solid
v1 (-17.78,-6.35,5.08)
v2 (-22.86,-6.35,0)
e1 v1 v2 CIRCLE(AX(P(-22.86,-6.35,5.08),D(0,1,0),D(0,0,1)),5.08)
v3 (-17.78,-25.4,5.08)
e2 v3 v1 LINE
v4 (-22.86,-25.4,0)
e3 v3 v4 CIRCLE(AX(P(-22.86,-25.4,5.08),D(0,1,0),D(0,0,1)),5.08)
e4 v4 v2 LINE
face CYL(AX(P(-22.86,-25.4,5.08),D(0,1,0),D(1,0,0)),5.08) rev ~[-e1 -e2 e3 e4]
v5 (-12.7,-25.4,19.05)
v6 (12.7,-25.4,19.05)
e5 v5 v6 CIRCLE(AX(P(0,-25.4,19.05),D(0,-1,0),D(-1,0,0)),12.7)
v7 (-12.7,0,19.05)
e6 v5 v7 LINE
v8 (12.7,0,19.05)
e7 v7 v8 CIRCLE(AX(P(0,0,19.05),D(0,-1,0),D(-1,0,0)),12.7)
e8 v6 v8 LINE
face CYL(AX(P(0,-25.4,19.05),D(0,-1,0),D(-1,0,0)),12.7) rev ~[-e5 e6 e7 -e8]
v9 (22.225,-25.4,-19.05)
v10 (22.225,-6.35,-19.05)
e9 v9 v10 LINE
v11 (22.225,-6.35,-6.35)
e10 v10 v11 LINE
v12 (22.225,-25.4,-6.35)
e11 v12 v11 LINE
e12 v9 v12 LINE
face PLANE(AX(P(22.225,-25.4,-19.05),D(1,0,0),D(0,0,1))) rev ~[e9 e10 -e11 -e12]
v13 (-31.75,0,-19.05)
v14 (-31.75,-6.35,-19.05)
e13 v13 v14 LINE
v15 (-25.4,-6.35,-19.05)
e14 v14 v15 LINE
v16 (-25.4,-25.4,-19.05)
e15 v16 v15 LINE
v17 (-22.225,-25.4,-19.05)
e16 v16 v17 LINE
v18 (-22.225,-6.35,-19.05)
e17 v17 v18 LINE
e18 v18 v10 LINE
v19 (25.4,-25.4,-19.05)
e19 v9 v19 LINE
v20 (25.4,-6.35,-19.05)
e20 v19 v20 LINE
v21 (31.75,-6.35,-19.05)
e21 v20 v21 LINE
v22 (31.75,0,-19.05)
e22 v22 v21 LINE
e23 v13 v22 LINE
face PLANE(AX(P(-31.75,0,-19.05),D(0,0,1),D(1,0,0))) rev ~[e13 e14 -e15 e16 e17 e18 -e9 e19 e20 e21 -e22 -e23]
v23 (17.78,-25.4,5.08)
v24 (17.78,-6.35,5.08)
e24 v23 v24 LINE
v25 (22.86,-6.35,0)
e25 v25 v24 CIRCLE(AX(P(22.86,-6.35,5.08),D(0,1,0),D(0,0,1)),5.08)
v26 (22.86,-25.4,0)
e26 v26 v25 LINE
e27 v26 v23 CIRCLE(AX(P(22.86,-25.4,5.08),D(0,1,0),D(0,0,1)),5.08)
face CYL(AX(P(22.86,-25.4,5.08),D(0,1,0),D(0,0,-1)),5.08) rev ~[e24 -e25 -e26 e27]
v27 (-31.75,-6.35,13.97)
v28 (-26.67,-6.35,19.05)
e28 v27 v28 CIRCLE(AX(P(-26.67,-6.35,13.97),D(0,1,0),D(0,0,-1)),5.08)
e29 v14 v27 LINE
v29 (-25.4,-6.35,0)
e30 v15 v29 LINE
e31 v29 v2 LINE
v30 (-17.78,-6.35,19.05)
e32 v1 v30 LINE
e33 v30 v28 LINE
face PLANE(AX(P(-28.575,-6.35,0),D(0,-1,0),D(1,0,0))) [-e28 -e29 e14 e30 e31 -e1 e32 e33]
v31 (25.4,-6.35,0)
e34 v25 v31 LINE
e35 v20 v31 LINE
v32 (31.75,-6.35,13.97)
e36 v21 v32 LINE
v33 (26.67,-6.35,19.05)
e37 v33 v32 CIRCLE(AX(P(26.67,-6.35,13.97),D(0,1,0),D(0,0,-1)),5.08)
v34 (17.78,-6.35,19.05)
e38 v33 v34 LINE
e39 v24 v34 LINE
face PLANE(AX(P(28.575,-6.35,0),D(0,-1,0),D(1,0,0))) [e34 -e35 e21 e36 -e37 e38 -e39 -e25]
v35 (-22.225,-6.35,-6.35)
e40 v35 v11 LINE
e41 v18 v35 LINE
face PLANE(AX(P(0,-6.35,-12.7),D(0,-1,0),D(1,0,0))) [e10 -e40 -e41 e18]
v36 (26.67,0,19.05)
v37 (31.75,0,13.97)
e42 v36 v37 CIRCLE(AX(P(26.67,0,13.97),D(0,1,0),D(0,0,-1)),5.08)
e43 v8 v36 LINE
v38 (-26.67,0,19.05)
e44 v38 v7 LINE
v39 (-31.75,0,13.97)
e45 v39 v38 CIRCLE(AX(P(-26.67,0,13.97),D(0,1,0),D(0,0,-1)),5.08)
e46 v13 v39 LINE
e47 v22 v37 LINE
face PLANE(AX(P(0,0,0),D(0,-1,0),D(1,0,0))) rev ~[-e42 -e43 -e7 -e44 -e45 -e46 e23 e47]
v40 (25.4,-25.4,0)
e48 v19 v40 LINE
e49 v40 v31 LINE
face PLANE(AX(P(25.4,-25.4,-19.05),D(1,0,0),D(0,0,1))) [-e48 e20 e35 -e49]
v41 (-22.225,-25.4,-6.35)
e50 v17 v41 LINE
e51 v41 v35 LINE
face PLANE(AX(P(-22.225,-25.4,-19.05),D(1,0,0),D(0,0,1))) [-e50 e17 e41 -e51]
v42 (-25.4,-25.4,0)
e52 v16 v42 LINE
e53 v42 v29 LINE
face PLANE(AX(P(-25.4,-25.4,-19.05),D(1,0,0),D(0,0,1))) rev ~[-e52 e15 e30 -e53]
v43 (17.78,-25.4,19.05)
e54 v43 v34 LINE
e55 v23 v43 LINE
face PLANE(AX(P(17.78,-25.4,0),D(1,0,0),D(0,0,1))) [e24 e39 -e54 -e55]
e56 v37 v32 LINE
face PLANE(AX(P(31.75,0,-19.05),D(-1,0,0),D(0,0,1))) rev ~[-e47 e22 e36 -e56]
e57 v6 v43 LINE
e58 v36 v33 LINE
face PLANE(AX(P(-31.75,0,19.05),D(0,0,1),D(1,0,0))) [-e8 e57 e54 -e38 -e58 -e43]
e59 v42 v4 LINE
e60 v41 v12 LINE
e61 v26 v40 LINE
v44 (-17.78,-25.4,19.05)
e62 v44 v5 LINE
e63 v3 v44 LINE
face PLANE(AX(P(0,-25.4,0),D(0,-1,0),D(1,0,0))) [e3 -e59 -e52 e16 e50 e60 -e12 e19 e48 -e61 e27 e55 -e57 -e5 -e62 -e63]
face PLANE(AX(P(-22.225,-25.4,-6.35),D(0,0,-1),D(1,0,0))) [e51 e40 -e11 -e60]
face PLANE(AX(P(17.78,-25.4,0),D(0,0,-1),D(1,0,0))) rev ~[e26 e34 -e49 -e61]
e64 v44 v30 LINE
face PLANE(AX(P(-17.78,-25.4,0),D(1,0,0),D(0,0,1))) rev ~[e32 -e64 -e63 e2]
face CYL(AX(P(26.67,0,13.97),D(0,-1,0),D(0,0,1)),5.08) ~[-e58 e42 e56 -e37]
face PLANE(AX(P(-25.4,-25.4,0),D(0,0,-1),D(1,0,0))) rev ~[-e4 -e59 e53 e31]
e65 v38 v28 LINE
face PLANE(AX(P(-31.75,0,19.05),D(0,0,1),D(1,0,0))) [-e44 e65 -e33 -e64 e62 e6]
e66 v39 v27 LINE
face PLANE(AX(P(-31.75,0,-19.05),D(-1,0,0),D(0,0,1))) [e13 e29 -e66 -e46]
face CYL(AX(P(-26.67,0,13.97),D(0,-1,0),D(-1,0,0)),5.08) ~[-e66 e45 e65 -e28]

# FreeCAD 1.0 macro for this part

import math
import FreeCAD as App
import Part
import Sketcher
Q = App.Units.Quantity


def edges_at(feature, points):
    """Names of the edges that pass closest to the given points."""
    edges = feature.Shape.Edges
    near = lambda p: min(range(len(edges)), key=lambda i: edges[i].distToShape(Part.Vertex(*p))[0])
    return sorted({f"Edge{near(p) + 1}" for p in points})

doc = App.newDocument("Part")
body = doc.addObject("PartDesign::Body", "Body")

# Sketch on XZ plane
sketch1 = doc.addObject("Sketcher::SketchObject", "Sketch")
body.addObject(sketch1)
sketch1.AttachmentSupport = (doc.XZ_Plane, [""])
sketch1.MapMode = "FlatFace"
sketch1.addGeometry([
    Part.LineSegment(App.Vector(-31.75, 19.05, 0), App.Vector(-31.75, -19.05, 0)),
    Part.LineSegment(App.Vector(-31.75, -19.05, 0), App.Vector(31.75, -19.05, 0)),
    Part.LineSegment(App.Vector(31.75, -19.05, 0), App.Vector(31.75, 19.05, 0)),
    Part.LineSegment(App.Vector(31.75, 19.05, 0), App.Vector(-31.75, 19.05, 0)),
], False)
sketch1.addConstraint([
    Sketcher.Constraint("Coincident", 0, 2, 1, 1),
    Sketcher.Constraint("Coincident", 1, 2, 2, 1),
    Sketcher.Constraint("Coincident", 2, 2, 3, 1),
    Sketcher.Constraint("Coincident", 3, 2, 0, 1),
    Sketcher.Constraint("Vertical", 0),
    Sketcher.Constraint("Horizontal", 1),
    Sketcher.Constraint("Vertical", 2),
    Sketcher.Constraint("Horizontal", 3),
    Sketcher.Constraint("Symmetric", 0, 2, 2, 2, -1, 1),
    Sketcher.Constraint("DistanceX", 1, 1, 1, 2, Q("2.5 in")),
    Sketcher.Constraint("DistanceY", 0, 2, 0, 1, Q("1.5 in")),
])
pad1 = doc.addObject("PartDesign::Pad", "Pad")
body.addObject(pad1)
pad1.Profile = sketch1
pad1.Length = Q("1 in")

# Sketch on XZ plane
sketch2 = doc.addObject("Sketcher::SketchObject", "Sketch001")
body.addObject(sketch2)
sketch2.AttachmentSupport = (doc.XZ_Plane, [""])
sketch2.MapMode = "FlatFace"
sketch2.AttachmentOffset = App.Placement(App.Vector(0, 0, 1 * 25.4), App.Rotation())
sketch2.addGeometry([
    Part.LineSegment(App.Vector(12.7, 19.05, 0), App.Vector(-12.7, 19.05, 0)),
    Part.ArcOfCircle(Part.Circle(App.Vector(0, 19.05, 0), App.Vector(0, 0, 1), 12.7), math.radians(180), math.radians(360)),
], False)
sketch2.addConstraint([
    Sketcher.Constraint("Coincident", 0, 1, 1, 2),
    Sketcher.Constraint("Coincident", 1, 1, 0, 2),
    Sketcher.Constraint("Horizontal", 0),
    Sketcher.Constraint("PointOnObject", 1, 3, -2),
    Sketcher.Constraint("Horizontal", 1, 3, 0, 1),
    Sketcher.Constraint("Radius", 1, Q("0.5 in")),
    Sketcher.Constraint("DistanceY", -1, 1, 1, 3, Q("0.75 in")),
])
pocket1 = doc.addObject("PartDesign::Pocket", "Pocket")
body.addObject(pocket1)
pocket1.Profile = sketch2
pocket1.Length = Q("1.5 in")

# Sketch on XZ plane
sketch3 = doc.addObject("Sketcher::SketchObject", "Sketch002")
body.addObject(sketch3)
sketch3.AttachmentSupport = (doc.XZ_Plane, [""])
sketch3.MapMode = "FlatFace"
sketch3.AttachmentOffset = App.Placement(App.Vector(0, 0, 1 * 25.4), App.Rotation())
sketch3.addGeometry([
    Part.LineSegment(App.Vector(-22.225, -6.35, 0), App.Vector(-22.225, -19.05, 0)),
    Part.LineSegment(App.Vector(-22.225, -19.05, 0), App.Vector(22.225, -19.05, 0)),
    Part.LineSegment(App.Vector(22.225, -19.05, 0), App.Vector(22.225, -6.35, 0)),
    Part.LineSegment(App.Vector(22.225, -6.35, 0), App.Vector(-22.225, -6.35, 0)),
], False)
sketch3.addConstraint([
    Sketcher.Constraint("Coincident", 0, 2, 1, 1),
    Sketcher.Constraint("Coincident", 1, 2, 2, 1),
    Sketcher.Constraint("Coincident", 2, 2, 3, 1),
    Sketcher.Constraint("Coincident", 3, 2, 0, 1),
    Sketcher.Constraint("Vertical", 0),
    Sketcher.Constraint("Horizontal", 1),
    Sketcher.Constraint("Vertical", 2),
    Sketcher.Constraint("Horizontal", 3),
    Sketcher.Constraint("DistanceY", 0, 2, 0, 1, Q("0.5 in")),
    Sketcher.Constraint("DistanceX", 1, 1, 1, 2, Q("1.75 in")),
    Sketcher.Constraint("DistanceY", 0, 2, -1, 1, Q("0.75 in")),
    Sketcher.Constraint("DistanceX", 0, 2, -1, 1, Q("0.875 in")),
])
pocket2 = doc.addObject("PartDesign::Pocket", "Pocket001")
body.addObject(pocket2)
pocket2.Profile = sketch3
pocket2.Length = Q("0.75 in")

# Sketch on XZ plane
sketch4 = doc.addObject("Sketcher::SketchObject", "Sketch003")
body.addObject(sketch4)
sketch4.AttachmentSupport = (doc.XZ_Plane, [""])
sketch4.MapMode = "FlatFace"
sketch4.AttachmentOffset = App.Placement(App.Vector(0, 0, 1 * 25.4), App.Rotation())
sketch4.addGeometry([
    Part.LineSegment(App.Vector(-31.75, 19.05, 0), App.Vector(-31.75, -19.05, 0)),
    Part.LineSegment(App.Vector(-31.75, -19.05, 0), App.Vector(-25.4, -19.05, 0)),
    Part.LineSegment(App.Vector(-25.4, -19.05, 0), App.Vector(-25.4, 19.05, 0)),
    Part.LineSegment(App.Vector(-25.4, 19.05, 0), App.Vector(-31.75, 19.05, 0)),
], False)
sketch4.addConstraint([
    Sketcher.Constraint("Coincident", 0, 2, 1, 1),
    Sketcher.Constraint("Coincident", 1, 2, 2, 1),
    Sketcher.Constraint("Coincident", 2, 2, 3, 1),
    Sketcher.Constraint("Coincident", 3, 2, 0, 1),
    Sketcher.Constraint("Vertical", 0),
    Sketcher.Constraint("Horizontal", 1),
    Sketcher.Constraint("Vertical", 2),
    Sketcher.Constraint("Horizontal", 3),
    Sketcher.Constraint("DistanceY", 0, 2, 0, 1, Q("1.5 in")),
    Sketcher.Constraint("DistanceX", 1, 2, -1, 1, Q("1 in")),
    Sketcher.Constraint("DistanceX", 1, 1, 1, 2, Q("0.25 in")),
    Sketcher.Constraint("DistanceY", 0, 2, -1, 1, Q("0.75 in")),
])
pocket3 = doc.addObject("PartDesign::Pocket", "Pocket002")
body.addObject(pocket3)
pocket3.Profile = sketch4
pocket3.Length = Q("0.75 in")

# Sketch on XZ plane
sketch5 = doc.addObject("Sketcher::SketchObject", "Sketch004")
body.addObject(sketch5)
sketch5.AttachmentSupport = (doc.XZ_Plane, [""])
sketch5.MapMode = "FlatFace"
sketch5.AttachmentOffset = App.Placement(App.Vector(0, 0, 1 * 25.4), App.Rotation())
sketch5.addGeometry([
    Part.LineSegment(App.Vector(25.4, 19.05, 0), App.Vector(25.4, -19.05, 0)),
    Part.LineSegment(App.Vector(25.4, -19.05, 0), App.Vector(31.75, -19.05, 0)),
    Part.LineSegment(App.Vector(31.75, -19.05, 0), App.Vector(31.75, 19.05, 0)),
    Part.LineSegment(App.Vector(31.75, 19.05, 0), App.Vector(25.4, 19.05, 0)),
], False)
sketch5.addConstraint([
    Sketcher.Constraint("Coincident", 0, 2, 1, 1),
    Sketcher.Constraint("Coincident", 1, 2, 2, 1),
    Sketcher.Constraint("Coincident", 2, 2, 3, 1),
    Sketcher.Constraint("Coincident", 3, 2, 0, 1),
    Sketcher.Constraint("Vertical", 0),
    Sketcher.Constraint("Horizontal", 1),
    Sketcher.Constraint("Vertical", 2),
    Sketcher.Constraint("Horizontal", 3),
    Sketcher.Constraint("DistanceY", 0, 2, 0, 1, Q("1.5 in")),
    Sketcher.Constraint("DistanceX", -1, 1, 0, 2, Q("1 in")),
    Sketcher.Constraint("DistanceX", 1, 1, 1, 2, Q("0.25 in")),
    Sketcher.Constraint("DistanceY", 0, 2, -1, 1, Q("0.75 in")),
])
pocket4 = doc.addObject("PartDesign::Pocket", "Pocket003")
body.addObject(pocket4)
pocket4.Profile = sketch5
pocket4.Length = Q("0.75 in")
doc.recompute()

fillet = doc.addObject("PartDesign::Fillet", "Fillet")
body.addObject(fillet)
fillet.Base = (pocket4, edges_at(pocket4, [(31.75, -3.175, 19.05), (-31.75, -3.175, 19.05)]))
fillet.Radius = Q("0.2 in")

# Sketch on XZ plane
sketch6 = doc.addObject("Sketcher::SketchObject", "Sketch005")
body.addObject(sketch6)
sketch6.AttachmentSupport = (doc.XZ_Plane, [""])
sketch6.MapMode = "FlatFace"
sketch6.AttachmentOffset = App.Placement(App.Vector(0, 0, 1 * 25.4), App.Rotation())
sketch6.addGeometry([
    Part.LineSegment(App.Vector(-25.4, 19.05, 0), App.Vector(-25.4, 0, 0)),
    Part.LineSegment(App.Vector(-25.4, 0, 0), App.Vector(-17.78, 0, 0)),
    Part.LineSegment(App.Vector(-17.78, 0, 0), App.Vector(-17.78, 19.05, 0)),
    Part.LineSegment(App.Vector(-17.78, 19.05, 0), App.Vector(-25.4, 19.05, 0)),
], False)
sketch6.addConstraint([
    Sketcher.Constraint("Coincident", 0, 2, 1, 1),
    Sketcher.Constraint("Coincident", 1, 2, 2, 1),
    Sketcher.Constraint("Coincident", 2, 2, 3, 1),
    Sketcher.Constraint("Coincident", 3, 2, 0, 1),
    Sketcher.Constraint("Vertical", 0),
    Sketcher.Constraint("Horizontal", 1),
    Sketcher.Constraint("Vertical", 2),
    Sketcher.Constraint("Horizontal", 3),
    Sketcher.Constraint("PointOnObject", 0, 2, -1),
    Sketcher.Constraint("DistanceX", 1, 1, 1, 2, Q("0.3 in")),
    Sketcher.Constraint("DistanceX", 0, 2, -1, 1, Q("1 in")),
    Sketcher.Constraint("DistanceY", 0, 2, 0, 1, Q("0.75 in")),
])
pocket5 = doc.addObject("PartDesign::Pocket", "Pocket004")
body.addObject(pocket5)
pocket5.Profile = sketch6
pocket5.Length = Q("0.75 in")
doc.recompute()

fillet2 = doc.addObject("PartDesign::Fillet", "Fillet001")
body.addObject(fillet2)
fillet2.Base = (pocket5, edges_at(pocket5, [(-17.78, -15.875, 0)]))
fillet2.Radius = Q("0.2 in")

# Sketch on XZ plane
sketch7 = doc.addObject("Sketcher::SketchObject", "Sketch006")
body.addObject(sketch7)
sketch7.AttachmentSupport = (doc.XZ_Plane, [""])
sketch7.MapMode = "FlatFace"
sketch7.AttachmentOffset = App.Placement(App.Vector(0, 0, 1 * 25.4), App.Rotation())
sketch7.addGeometry([
    Part.LineSegment(App.Vector(17.78, 19.05, 0), App.Vector(17.78, 0, 0)),
    Part.LineSegment(App.Vector(17.78, 0, 0), App.Vector(25.4, 0, 0)),
    Part.LineSegment(App.Vector(25.4, 0, 0), App.Vector(25.4, 19.05, 0)),
    Part.LineSegment(App.Vector(25.4, 19.05, 0), App.Vector(17.78, 19.05, 0)),
], False)
sketch7.addConstraint([
    Sketcher.Constraint("Coincident", 0, 2, 1, 1),
    Sketcher.Constraint("Coincident", 1, 2, 2, 1),
    Sketcher.Constraint("Coincident", 2, 2, 3, 1),
    Sketcher.Constraint("Coincident", 3, 2, 0, 1),
    Sketcher.Constraint("Vertical", 0),
    Sketcher.Constraint("Horizontal", 1),
    Sketcher.Constraint("Vertical", 2),
    Sketcher.Constraint("Horizontal", 3),
    Sketcher.Constraint("PointOnObject", 0, 2, -1),
    Sketcher.Constraint("DistanceX", 1, 1, 1, 2, Q("0.3 in")),
    Sketcher.Constraint("DistanceX", -1, 1, 1, 2, Q("1 in")),
    Sketcher.Constraint("DistanceY", 0, 2, 0, 1, Q("0.75 in")),
])
pocket6 = doc.addObject("PartDesign::Pocket", "Pocket005")
body.addObject(pocket6)
pocket6.Profile = sketch7
pocket6.Length = Q("0.75 in")
doc.recompute()

fillet3 = doc.addObject("PartDesign::Fillet", "Fillet002")
body.addObject(fillet3)
fillet3.Base = (pocket6, edges_at(pocket6, [(17.78, -15.875, 0)]))
fillet3.Radius = Q("0.2 in")

doc.recompute()
